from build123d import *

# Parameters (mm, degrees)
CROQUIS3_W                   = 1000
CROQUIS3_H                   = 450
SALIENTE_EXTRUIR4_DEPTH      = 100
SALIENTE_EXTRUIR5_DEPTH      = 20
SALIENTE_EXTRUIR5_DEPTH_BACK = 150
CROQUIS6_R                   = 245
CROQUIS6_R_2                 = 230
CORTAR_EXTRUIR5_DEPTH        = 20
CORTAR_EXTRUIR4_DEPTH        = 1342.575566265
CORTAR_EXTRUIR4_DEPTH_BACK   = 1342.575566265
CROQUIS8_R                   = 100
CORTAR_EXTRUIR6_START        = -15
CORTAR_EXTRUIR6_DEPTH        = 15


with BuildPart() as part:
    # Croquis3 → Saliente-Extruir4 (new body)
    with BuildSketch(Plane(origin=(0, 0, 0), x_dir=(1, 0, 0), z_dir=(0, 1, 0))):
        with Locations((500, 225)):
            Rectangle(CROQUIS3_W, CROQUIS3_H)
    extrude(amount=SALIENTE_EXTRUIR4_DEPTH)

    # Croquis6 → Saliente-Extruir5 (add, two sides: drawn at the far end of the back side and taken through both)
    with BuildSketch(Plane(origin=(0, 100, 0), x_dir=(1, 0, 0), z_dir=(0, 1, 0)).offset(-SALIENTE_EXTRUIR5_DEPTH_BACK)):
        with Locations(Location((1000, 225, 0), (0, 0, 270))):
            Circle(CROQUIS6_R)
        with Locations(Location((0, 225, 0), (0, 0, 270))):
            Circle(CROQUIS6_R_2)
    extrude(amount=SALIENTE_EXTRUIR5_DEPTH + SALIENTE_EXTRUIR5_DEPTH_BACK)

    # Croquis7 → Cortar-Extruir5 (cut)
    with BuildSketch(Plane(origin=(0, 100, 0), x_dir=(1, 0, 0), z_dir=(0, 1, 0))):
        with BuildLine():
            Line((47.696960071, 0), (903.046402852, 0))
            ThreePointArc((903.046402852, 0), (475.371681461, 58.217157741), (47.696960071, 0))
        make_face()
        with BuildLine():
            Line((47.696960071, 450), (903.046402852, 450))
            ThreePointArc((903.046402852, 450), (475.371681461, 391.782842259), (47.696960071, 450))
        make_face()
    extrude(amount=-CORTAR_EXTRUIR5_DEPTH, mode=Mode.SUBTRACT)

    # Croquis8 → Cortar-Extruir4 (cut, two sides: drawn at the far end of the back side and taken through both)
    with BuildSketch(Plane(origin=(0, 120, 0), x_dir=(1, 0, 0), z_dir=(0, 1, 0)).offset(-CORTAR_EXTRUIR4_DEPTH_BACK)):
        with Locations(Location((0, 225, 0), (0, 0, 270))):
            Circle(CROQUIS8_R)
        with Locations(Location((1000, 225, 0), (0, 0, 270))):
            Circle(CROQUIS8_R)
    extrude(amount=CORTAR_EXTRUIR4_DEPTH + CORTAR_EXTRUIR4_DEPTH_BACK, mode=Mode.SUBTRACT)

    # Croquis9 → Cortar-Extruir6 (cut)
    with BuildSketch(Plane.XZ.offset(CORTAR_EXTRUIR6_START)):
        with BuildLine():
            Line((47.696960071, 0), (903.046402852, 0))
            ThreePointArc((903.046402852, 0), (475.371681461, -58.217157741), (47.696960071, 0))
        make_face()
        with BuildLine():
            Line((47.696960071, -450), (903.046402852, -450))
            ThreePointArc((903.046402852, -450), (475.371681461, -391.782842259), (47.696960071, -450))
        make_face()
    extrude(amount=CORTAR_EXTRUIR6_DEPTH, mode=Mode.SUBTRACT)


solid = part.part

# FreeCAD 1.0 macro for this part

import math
import FreeCAD as App
import Part
import Sketcher
from FreeCAD import Vector
Q = App.Units.Quantity

doc = App.newDocument("Part")
body = doc.addObject("PartDesign::Body", "Body")

# Sketch on XZ plane
sketch1 = body.newObject("Sketcher::SketchObject", "Sketch")
sketch1.AttachmentSupport = (doc.getObject("XZ_Plane"), [""])
sketch1.MapMode = "FlatFace"
sketch1.addGeometry([
    Part.LineSegment(Vector(0, -450, 0), Vector(0, 0, 0)),
    Part.LineSegment(Vector(0, 0, 0), Vector(1000, 0, 0)),
    Part.LineSegment(Vector(1000, 0, 0), Vector(1000, -450, 0)),
    Part.LineSegment(Vector(1000, -450, 0), Vector(0, -450, 0)),
], False)
sketch1.addConstraint([
    Sketcher.Constraint("Coincident", 0, 2, 1, 1),
    Sketcher.Constraint("Coincident", 1, 2, 2, 1),
    Sketcher.Constraint("Coincident", 2, 2, 3, 1),
    Sketcher.Constraint("Coincident", 3, 2, 0, 1),
    Sketcher.Constraint("Vertical", 0),
    Sketcher.Constraint("Horizontal", 1),
    Sketcher.Constraint("Vertical", 2),
    Sketcher.Constraint("Horizontal", 3),
    Sketcher.Constraint("Coincident", 0, 2, -1, 1),
    Sketcher.Constraint("DistanceX", 1, 1, 1, 2, Q("1000 mm")),
    Sketcher.Constraint("DistanceY", 0, 1, 0, 2, Q("450 mm")),
])
pad1 = body.newObject("PartDesign::Pad", "Pad")
pad1.Profile = sketch1
pad1.Length = 100
pad1.Reversed = True

# Sketch on XZ plane
sketch2 = body.newObject("Sketcher::SketchObject", "Sketch001")
sketch2.AttachmentSupport = (doc.getObject("XZ_Plane"), [""])
sketch2.MapMode = "FlatFace"
sketch2.AttachmentOffset = App.Placement(Vector(0, 0, -100), App.Rotation())
sketch2.addGeometry([
    Part.Circle(Vector(1000, -225, 0), Vector(0, 0, 1), 245),
    Part.Circle(Vector(0, -225, 0), Vector(0, 0, 1), 230),
], False)
sketch2.addConstraint([
    Sketcher.Constraint("PointOnObject", 1, 3, -2),
    Sketcher.Constraint("Horizontal", 0, 3, 1, 3),
    Sketcher.Constraint("Diameter", 0, Q("490 mm")),
    Sketcher.Constraint("Diameter", 1, Q("460 mm")),
    Sketcher.Constraint("DistanceX", -1, 1, 0, 3, Q("1000 mm")),
    Sketcher.Constraint("DistanceY", 0, 3, -1, 1, Q("225 mm")),
])
pad2 = body.newObject("PartDesign::Pad", "Pad001")
pad2.Profile = sketch2
pad2.Type = "TwoLengths"
pad2.Length = 20
pad2.Length2 = 150
pad2.Reversed = True

# Sketch on XZ plane
sketch3 = body.newObject("Sketcher::SketchObject", "Sketch002")
sketch3.AttachmentSupport = (doc.getObject("XZ_Plane"), [""])
sketch3.MapMode = "FlatFace"
sketch3.AttachmentOffset = App.Placement(Vector(0, 0, -100), App.Rotation())
sketch3.addGeometry([
    Part.LineSegment(Vector(48, 0, 0), Vector(903, 0, 0)),
    Part.ArcOfCircle(Part.Circle(Vector(475, 1542, 0), Vector(0, 0, 1), 1600), math.radians(-106), math.radians(-74)),
    Part.LineSegment(Vector(903, -450, 0), Vector(48, -450, 0)),
    Part.ArcOfCircle(Part.Circle(Vector(475, -1992, 0), Vector(0, 0, 1), 1600), math.radians(74), math.radians(106)),
], False)
sketch3.addConstraint([
    Sketcher.Constraint("Coincident", 0, 1, 1, 1),
    Sketcher.Constraint("Coincident", 1, 2, 0, 2),
    Sketcher.Constraint("Coincident", 2, 1, 3, 1),
    Sketcher.Constraint("Coincident", 3, 2, 2, 2),
    Sketcher.Constraint("Horizontal", 0),
    Sketcher.Constraint("Horizontal", 2),
    Sketcher.Constraint("Equal", 1, 3),
    Sketcher.Constraint("PointOnObject", 0, 1, -1),
    Sketcher.Constraint("Vertical", 1, 3, 3, 3),
    Sketcher.Constraint("Equal", 0, 2),
    Sketcher.Constraint("Radius", 1, Q("1600 mm")),
    Sketcher.Constraint("DistanceY", 2, 1, -1, 1, Q("450 mm")),
    Sketcher.Constraint("DistanceX", 0, 1, 0, 2, Q("855.349443 mm")),
    Sketcher.Constraint("DistanceX", -1, 1, 1, 3, Q("475.371681 mm")),
])
pocket1 = body.newObject("PartDesign::Pocket", "Pocket")
pocket1.Profile = sketch3
pocket1.Length = 20
pocket1.Reversed = True

# Sketch on XZ plane
sketch4 = body.newObject("Sketcher::SketchObject", "Sketch003")
sketch4.AttachmentSupport = (doc.getObject("XZ_Plane"), [""])
sketch4.MapMode = "FlatFace"
sketch4.AttachmentOffset = App.Placement(Vector(0, 0, -120), App.Rotation())
sketch4.addGeometry([
    Part.Circle(Vector(0, -225, 0), Vector(0, 0, 1), 100),
    Part.Circle(Vector(1000, -225, 0), Vector(0, 0, 1), 100),
], False)
sketch4.addConstraint([
    Sketcher.Constraint("Equal", 0, 1),
    Sketcher.Constraint("PointOnObject", 0, 3, -2),
    Sketcher.Constraint("Horizontal", 0, 3, 1, 3),
    Sketcher.Constraint("Diameter", 0, Q("200 mm")),
    Sketcher.Constraint("DistanceY", 0, 3, -1, 1, Q("225 mm")),
    Sketcher.Constraint("DistanceX", -1, 1, 1, 3, Q("1000 mm")),
])
pocket2 = body.newObject("PartDesign::Pocket", "Pocket001")
pocket2.Profile = sketch4
pocket2.Type = "ThroughAll"
pocket2.Midplane = True

# Sketch on XZ plane
sketch5 = body.newObject("Sketcher::SketchObject", "Sketch004")
sketch5.AttachmentSupport = (doc.getObject("XZ_Plane"), [""])
sketch5.MapMode = "FlatFace"
sketch5.AttachmentOffset = App.Placement(Vector(0, 0, -15), App.Rotation())
sketch5.addGeometry([
    Part.LineSegment(Vector(903, 0, 0), Vector(48, 0, 0)),
    Part.ArcOfCircle(Part.Circle(Vector(475, 1542, 0), Vector(0, 0, 1), 1600), math.radians(-106), math.radians(-74)),
    Part.LineSegment(Vector(48, -450, 0), Vector(903, -450, 0)),
    Part.ArcOfCircle(Part.Circle(Vector(475, -1992, 0), Vector(0, 0, 1), 1600), math.radians(74), math.radians(106)),
], False)
sketch5.addConstraint([
    Sketcher.Constraint("Coincident", 0, 1, 1, 2),
    Sketcher.Constraint("Coincident", 1, 1, 0, 2),
    Sketcher.Constraint("Coincident", 2, 1, 3, 2),
    Sketcher.Constraint("Coincident", 3, 1, 2, 2),
    Sketcher.Constraint("Horizontal", 0),
    Sketcher.Constraint("Horizontal", 2),
    Sketcher.Constraint("Equal", 1, 3),
    Sketcher.Constraint("PointOnObject", 0, 1, -1),
    Sketcher.Constraint("Vertical", 1, 3, 3, 3),
    Sketcher.Constraint("Equal", 0, 2),
    Sketcher.Constraint("Radius", 1, Q("1600 mm")),
    Sketcher.Constraint("DistanceY", 2, 1, -1, 1, Q("450 mm")),
    Sketcher.Constraint("DistanceX", 0, 2, 0, 1, Q("855.349443 mm")),
    Sketcher.Constraint("DistanceX", -1, 1, 1, 3, Q("475.371681 mm")),
])
pocket3 = body.newObject("PartDesign::Pocket", "Pocket002")
pocket3.Profile = sketch5
pocket3.Length = 15
pocket3.Reversed = True

doc.recompute()
